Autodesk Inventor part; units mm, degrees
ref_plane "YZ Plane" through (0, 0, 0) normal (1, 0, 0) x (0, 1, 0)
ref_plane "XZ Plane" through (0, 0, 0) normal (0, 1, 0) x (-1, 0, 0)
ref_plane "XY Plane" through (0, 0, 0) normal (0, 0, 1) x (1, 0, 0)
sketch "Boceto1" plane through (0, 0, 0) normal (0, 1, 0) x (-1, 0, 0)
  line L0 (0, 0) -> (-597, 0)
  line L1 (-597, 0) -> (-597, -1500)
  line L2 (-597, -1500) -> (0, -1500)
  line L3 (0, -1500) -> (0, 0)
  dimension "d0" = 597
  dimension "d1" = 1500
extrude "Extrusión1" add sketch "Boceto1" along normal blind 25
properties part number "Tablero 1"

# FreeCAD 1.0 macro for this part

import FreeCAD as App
import Part
import Sketcher


def add_polygon(sketch, points):
    """Adds a closed chain of lines whose ends are joined by coincident constraints."""
    first, n = sketch.GeometryCount, len(points)
    for a, b in zip(points, points[1:] + points[:1]):
        sketch.addGeometry(Part.LineSegment(App.Vector(*a, 0), App.Vector(*b, 0)), False)
    for i in range(n):
        sketch.addConstraint(Sketcher.Constraint("Coincident", first + i, 2, first + (i + 1) % n, 1))

doc = App.newDocument("Part")
body = doc.addObject("PartDesign::Body", "Body")

# Sketch on XZ plane
sketch1 = body.newObject("Sketcher::SketchObject", "Sketch")
sketch1.AttachmentSupport = (doc.getObject("XZ_Plane"), [""])
sketch1.MapMode = "FlatFace"
add_polygon(sketch1, [(0, -1500), (0, 0), (597, 0), (597, -1500)])  # lines 0-3
sketch1.addConstraint(Sketcher.Constraint("Vertical", 0))
sketch1.addConstraint(Sketcher.Constraint("Horizontal", 1))
sketch1.addConstraint(Sketcher.Constraint("Vertical", 2))
sketch1.addConstraint(Sketcher.Constraint("Horizontal", 3))
sketch1.addConstraint(Sketcher.Constraint("Coincident", 0, 2, -1, 1))
sketch1.addConstraint(Sketcher.Constraint("DistanceX", 1, 1, 1, 2, 597.0))
sketch1.addConstraint(Sketcher.Constraint("DistanceY", 0, 1, 0, 2, 1500.0))
pad1 = body.newObject("PartDesign::Pad", "Pad")
pad1.Profile = sketch1
pad1.Length = 25
pad1.Reversed = True

doc.recompute()
